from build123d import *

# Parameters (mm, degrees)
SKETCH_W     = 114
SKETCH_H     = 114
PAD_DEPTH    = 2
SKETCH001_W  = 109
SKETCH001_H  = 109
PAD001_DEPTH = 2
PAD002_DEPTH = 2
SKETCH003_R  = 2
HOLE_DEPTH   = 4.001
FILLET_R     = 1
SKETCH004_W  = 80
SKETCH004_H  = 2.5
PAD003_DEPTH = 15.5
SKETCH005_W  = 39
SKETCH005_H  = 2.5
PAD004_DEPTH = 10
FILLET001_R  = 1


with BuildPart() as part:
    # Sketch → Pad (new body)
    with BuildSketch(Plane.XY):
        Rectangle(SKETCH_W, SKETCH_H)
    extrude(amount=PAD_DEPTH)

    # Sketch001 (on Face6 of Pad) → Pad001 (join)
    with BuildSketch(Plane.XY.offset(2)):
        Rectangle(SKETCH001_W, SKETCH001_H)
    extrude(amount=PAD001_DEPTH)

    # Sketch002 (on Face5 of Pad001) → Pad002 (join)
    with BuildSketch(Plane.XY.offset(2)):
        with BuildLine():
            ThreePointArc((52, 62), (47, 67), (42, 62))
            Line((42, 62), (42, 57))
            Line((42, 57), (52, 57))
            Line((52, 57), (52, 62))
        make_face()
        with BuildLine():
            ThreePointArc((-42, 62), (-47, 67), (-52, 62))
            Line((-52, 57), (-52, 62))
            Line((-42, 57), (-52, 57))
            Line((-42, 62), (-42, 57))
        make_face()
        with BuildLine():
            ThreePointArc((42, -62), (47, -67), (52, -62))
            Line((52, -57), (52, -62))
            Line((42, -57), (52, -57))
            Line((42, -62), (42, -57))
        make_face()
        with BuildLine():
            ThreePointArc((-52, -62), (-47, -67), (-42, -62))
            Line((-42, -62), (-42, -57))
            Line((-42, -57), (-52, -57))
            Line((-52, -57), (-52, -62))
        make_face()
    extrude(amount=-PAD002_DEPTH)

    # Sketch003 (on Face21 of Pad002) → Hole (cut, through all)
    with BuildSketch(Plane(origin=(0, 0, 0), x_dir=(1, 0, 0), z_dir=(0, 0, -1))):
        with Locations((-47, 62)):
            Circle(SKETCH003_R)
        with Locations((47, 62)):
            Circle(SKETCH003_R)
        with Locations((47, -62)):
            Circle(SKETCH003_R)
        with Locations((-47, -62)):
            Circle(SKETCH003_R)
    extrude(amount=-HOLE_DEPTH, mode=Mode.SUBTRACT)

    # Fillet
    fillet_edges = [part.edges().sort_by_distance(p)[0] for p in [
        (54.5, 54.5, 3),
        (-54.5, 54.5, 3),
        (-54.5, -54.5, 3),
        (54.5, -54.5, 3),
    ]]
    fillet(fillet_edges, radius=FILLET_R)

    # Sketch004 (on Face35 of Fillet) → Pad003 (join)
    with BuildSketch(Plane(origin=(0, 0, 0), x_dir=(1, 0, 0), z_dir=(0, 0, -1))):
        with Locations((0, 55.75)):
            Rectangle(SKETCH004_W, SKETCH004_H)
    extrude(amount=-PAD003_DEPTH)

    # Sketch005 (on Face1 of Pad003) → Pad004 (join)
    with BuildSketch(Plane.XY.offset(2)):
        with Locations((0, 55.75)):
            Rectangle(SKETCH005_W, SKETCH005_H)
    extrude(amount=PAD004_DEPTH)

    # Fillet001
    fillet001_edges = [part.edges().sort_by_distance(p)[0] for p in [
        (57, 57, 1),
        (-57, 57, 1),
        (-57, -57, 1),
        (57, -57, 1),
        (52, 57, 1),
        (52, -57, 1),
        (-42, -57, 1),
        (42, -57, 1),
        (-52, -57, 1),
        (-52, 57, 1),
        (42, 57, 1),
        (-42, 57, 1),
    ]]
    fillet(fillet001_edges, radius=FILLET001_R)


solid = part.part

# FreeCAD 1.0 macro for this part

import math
import FreeCAD as App
import Part
import Sketcher
Q = App.Units.Quantity


def edges_at(feature, points):
    """Names of the edges that pass closest to the given points."""
    edges = feature.Shape.Edges
    near = lambda p: min(range(len(edges)), key=lambda i: edges[i].distToShape(Part.Vertex(*p))[0])
    return sorted({f"Edge{near(p) + 1}" for p in points})

doc = App.newDocument("Part")
body = doc.addObject("PartDesign::Body", "Body")

sketch1 = body.newObject("Sketcher::SketchObject", "Sketch")
sketch1.AttachmentSupport = (doc.getObject("XY_Plane"), [""])
sketch1.MapMode = "FlatFace"
sketch1.addGeometry(Part.LineSegment(App.Vector(-57, 57, 0), App.Vector(-57, -57, 0)), False)
sketch1.addGeometry(Part.LineSegment(App.Vector(-57, -57, 0), App.Vector(57, -57, 0)), False)
sketch1.addGeometry(Part.LineSegment(App.Vector(57, -57, 0), App.Vector(57, 57, 0)), False)
sketch1.addGeometry(Part.LineSegment(App.Vector(57, 57, 0), App.Vector(-57, 57, 0)), False)
sketch1.addConstraint(Sketcher.Constraint("Coincident", 0, 2, 1, 1))
sketch1.addConstraint(Sketcher.Constraint("Coincident", 1, 2, 2, 1))
sketch1.addConstraint(Sketcher.Constraint("Coincident", 2, 2, 3, 1))
sketch1.addConstraint(Sketcher.Constraint("Coincident", 3, 2, 0, 1))
sketch1.addConstraint(Sketcher.Constraint("Vertical", 0))
sketch1.addConstraint(Sketcher.Constraint("Horizontal", 1))
sketch1.addConstraint(Sketcher.Constraint("Vertical", 2))
sketch1.addConstraint(Sketcher.Constraint("Horizontal", 3))
sketch1.addConstraint(Sketcher.Constraint("Symmetric", 0, 2, 2, 2, -1, 1))
sketch1.addConstraint(Sketcher.Constraint("Equal", 3, 0))
sketch1.addConstraint(Sketcher.Constraint("DistanceX", 1, 1, 1, 2, Q("114 mm")))
pad1 = body.newObject("PartDesign::Pad", "Pad")
pad1.Profile = sketch1
pad1.Length = 2

sketch2 = body.newObject("Sketcher::SketchObject", "Sketch001")
sketch2.AttachmentSupport = (doc.getObject("XY_Plane"), [""])
sketch2.MapMode = "FlatFace"
sketch2.AttachmentOffset = App.Placement(App.Vector(0, 0, 2), App.Rotation())
sketch2.addGeometry(Part.LineSegment(App.Vector(-54, 54, 0), App.Vector(-54, -54, 0)), False)
sketch2.addGeometry(Part.LineSegment(App.Vector(-54, -54, 0), App.Vector(54, -54, 0)), False)
sketch2.addGeometry(Part.LineSegment(App.Vector(54, -54, 0), App.Vector(54, 54, 0)), False)
sketch2.addGeometry(Part.LineSegment(App.Vector(54, 54, 0), App.Vector(-54, 54, 0)), False)
sketch2.addConstraint(Sketcher.Constraint("Coincident", 0, 2, 1, 1))
sketch2.addConstraint(Sketcher.Constraint("Coincident", 1, 2, 2, 1))
sketch2.addConstraint(Sketcher.Constraint("Coincident", 2, 2, 3, 1))
sketch2.addConstraint(Sketcher.Constraint("Coincident", 3, 2, 0, 1))
sketch2.addConstraint(Sketcher.Constraint("Vertical", 0))
sketch2.addConstraint(Sketcher.Constraint("Horizontal", 1))
sketch2.addConstraint(Sketcher.Constraint("Vertical", 2))
sketch2.addConstraint(Sketcher.Constraint("Horizontal", 3))
sketch2.addConstraint(Sketcher.Constraint("Symmetric", 0, 2, 2, 2, -1, 1))
sketch2.addConstraint(Sketcher.Constraint("Equal", 3, 0))
sketch2.addConstraint(Sketcher.Constraint("DistanceX", 1, 1, 1, 2, Q("109 mm")))
pad2 = body.newObject("PartDesign::Pad", "Pad001")
pad2.Profile = sketch2
pad2.Length = 2

sketch3 = body.newObject("Sketcher::SketchObject", "Sketch002")
sketch3.AttachmentSupport = (doc.getObject("XY_Plane"), [""])
sketch3.MapMode = "FlatFace"
sketch3.AttachmentOffset = App.Placement(App.Vector(0, 0, 2), App.Rotation())
sketch3.addGeometry(Part.ArcOfCircle(Part.Circle(App.Vector(47, 62, 0), App.Vector(0, 0, 1), 5), math.radians(0), math.radians(180)), False)
sketch3.addGeometry(Part.LineSegment(App.Vector(42, 62, 0), App.Vector(42, 57, 0)), False)
sketch3.addGeometry(Part.LineSegment(App.Vector(42, 57, 0), App.Vector(52, 57, 0)), False)
sketch3.addGeometry(Part.LineSegment(App.Vector(52, 57, 0), App.Vector(52, 62, 0)), False)
sketch3.addGeometry(Part.ArcOfCircle(Part.Circle(App.Vector(-47, 62, 0), App.Vector(0, 0, 1), 5), math.radians(0), math.radians(180)), False)
sketch3.addGeometry(Part.LineSegment(App.Vector(-52, 62, 0), App.Vector(-52, 57, 0)), False)
sketch3.addGeometry(Part.LineSegment(App.Vector(-52, 57, 0), App.Vector(-42, 57, 0)), False)
sketch3.addGeometry(Part.LineSegment(App.Vector(-42, 57, 0), App.Vector(-42, 62, 0)), False)
sketch3.addGeometry(Part.ArcOfCircle(Part.Circle(App.Vector(47, -62, 0), App.Vector(0, 0, 1), 5), math.radians(180), math.radians(360)), False)
sketch3.addGeometry(Part.LineSegment(App.Vector(52, -62, 0), App.Vector(52, -57, 0)), False)
sketch3.addGeometry(Part.LineSegment(App.Vector(52, -57, 0), App.Vector(42, -57, 0)), False)
sketch3.addGeometry(Part.LineSegment(App.Vector(42, -57, 0), App.Vector(42, -62, 0)), False)
sketch3.addGeometry(Part.ArcOfCircle(Part.Circle(App.Vector(-47, -62, 0), App.Vector(0, 0, 1), 5), math.radians(180), math.radians(360)), False)
sketch3.addGeometry(Part.LineSegment(App.Vector(-42, -62, 0), App.Vector(-42, -57, 0)), False)
sketch3.addGeometry(Part.LineSegment(App.Vector(-42, -57, 0), App.Vector(-52, -57, 0)), False)
sketch3.addGeometry(Part.LineSegment(App.Vector(-52, -57, 0), App.Vector(-52, -62, 0)), False)
sketch3.addConstraint(Sketcher.Constraint("Tangent", 0, 2, 1, 1))
sketch3.addConstraint(Sketcher.Constraint("Coincident", 1, 2, 2, 1))
sketch3.addConstraint(Sketcher.Constraint("Coincident", 2, 2, 3, 1))
sketch3.addConstraint(Sketcher.Constraint("Tangent", 3, 2, 0, 1))
sketch3.addConstraint(Sketcher.Constraint("Tangent", 4, 2, 5, 1))
sketch3.addConstraint(Sketcher.Constraint("Coincident", 5, 2, 6, 1))
sketch3.addConstraint(Sketcher.Constraint("Coincident", 6, 2, 7, 1))
sketch3.addConstraint(Sketcher.Constraint("Tangent", 7, 2, 4, 1))
sketch3.addConstraint(Sketcher.Constraint("Tangent", 8, 2, 9, 1))
sketch3.addConstraint(Sketcher.Constraint("Coincident", 9, 2, 10, 1))
sketch3.addConstraint(Sketcher.Constraint("Coincident", 10, 2, 11, 1))
sketch3.addConstraint(Sketcher.Constraint("Tangent", 11, 2, 8, 1))
sketch3.addConstraint(Sketcher.Constraint("Tangent", 12, 2, 13, 1))
sketch3.addConstraint(Sketcher.Constraint("Coincident", 13, 2, 14, 1))
sketch3.addConstraint(Sketcher.Constraint("Coincident", 14, 2, 15, 1))
sketch3.addConstraint(Sketcher.Constraint("Tangent", 15, 2, 12, 1))
sketch3.addConstraint(Sketcher.Constraint("Vertical", 1))
sketch3.addConstraint(Sketcher.Constraint("Horizontal", 2))
sketch3.addConstraint(Sketcher.Constraint("Vertical", 3))
sketch3.addConstraint(Sketcher.Constraint("Vertical", 5))
sketch3.addConstraint(Sketcher.Constraint("Horizontal", 6))
sketch3.addConstraint(Sketcher.Constraint("Vertical", 7))
sketch3.addConstraint(Sketcher.Constraint("Vertical", 9))
sketch3.addConstraint(Sketcher.Constraint("Horizontal", 10))
sketch3.addConstraint(Sketcher.Constraint("Vertical", 11))
sketch3.addConstraint(Sketcher.Constraint("Vertical", 13))
sketch3.addConstraint(Sketcher.Constraint("Horizontal", 14))
sketch3.addConstraint(Sketcher.Constraint("Vertical", 15))
sketch3.addConstraint(Sketcher.Constraint("Equal", 0, 4))
sketch3.addConstraint(Sketcher.Constraint("Equal", 4, 8))
sketch3.addConstraint(Sketcher.Constraint("Equal", 8, 12))
sketch3.addConstraint(Sketcher.Constraint("Symmetric", 4, 3, 8, 3, -1, 1))
sketch3.addConstraint(Sketcher.Constraint("Symmetric", 0, 3, 12, 3, -1, 1))
sketch3.addConstraint(Sketcher.Constraint("Symmetric", 0, 3, 4, 3, -2))
sketch3.addConstraint(Sketcher.Constraint("Horizontal", 2, 2, 5, 2))
sketch3.addConstraint(Sketcher.Constraint("Horizontal", 10, 2, 13, 2))
sketch3.addConstraint(Sketcher.Constraint("Equal", 7, 9))
sketch3.addConstraint(Sketcher.Constraint("Radius", 0, Q("5 mm")))
sketch3.addConstraint(Sketcher.Constraint("DistanceY", 1, 2, 1, 1, Q("5 mm")))
sketch3.addConstraint(Sketcher.Constraint("DistanceX", -1, 1, 0, 3, Q("47 mm")))
sketch3.addConstraint(Sketcher.Constraint("DistanceY", -1, 1, 0, 3, Q("62 mm")))
pad3 = body.newObject("PartDesign::Pad", "Pad002")
pad3.Profile = sketch3
pad3.Length = 2
pad3.Reversed = True

sketch4 = body.newObject("Sketcher::SketchObject", "Sketch003")
sketch4.AttachmentSupport = (doc.getObject("XY_Plane"), [""])
sketch4.MapMode = "FlatFace"
sketch4.addGeometry(Part.Circle(App.Vector(-47, -62, 0), App.Vector(0, 0, 1), 2), False)
sketch4.addGeometry(Part.Circle(App.Vector(47, -62, 0), App.Vector(0, 0, 1), 2), False)
sketch4.addGeometry(Part.Circle(App.Vector(47, 62, 0), App.Vector(0, 0, 1), 2), False)
sketch4.addGeometry(Part.Circle(App.Vector(-47, 62, 0), App.Vector(0, 0, 1), 2), False)
sketch4.addConstraint(Sketcher.Constraint("Equal", 0, 1))
sketch4.addConstraint(Sketcher.Constraint("Equal", 1, 2))
sketch4.addConstraint(Sketcher.Constraint("Equal", 2, 3))
sketch4.addConstraint(Sketcher.Constraint("Symmetric", 0, 3, 2, 3, -1, 1))
sketch4.addConstraint(Sketcher.Constraint("Symmetric", 1, 3, 3, 3, -1, 1))
sketch4.addConstraint(Sketcher.Constraint("Symmetric", 0, 3, 1, 3, -2))
sketch4.addConstraint(Sketcher.Constraint("Diameter", 0, Q("4 mm")))
sketch4.addConstraint(Sketcher.Constraint("DistanceX", 0, 3, -1, 1, Q("47 mm")))
sketch4.addConstraint(Sketcher.Constraint("DistanceY", 0, 3, -1, 1, Q("62 mm")))
pocket1 = body.newObject("PartDesign::Pocket", "Pocket")
pocket1.Profile = sketch4
pocket1.Type = "ThroughAll"
pocket1.Reversed = True
doc.recompute()

fillet = body.newObject("PartDesign::Fillet", "Fillet")
fillet.Base = (pocket1, edges_at(pocket1, [
    (54.5, 54.5, 3),
    (-54.5, 54.5, 3),
    (-54.5, -54.5, 3),
    (54.5, -54.5, 3),
]))
fillet.Radius = 1

sketch5 = body.newObject("Sketcher::SketchObject", "Sketch004")
sketch5.AttachmentSupport = (doc.getObject("XY_Plane"), [""])
sketch5.MapMode = "FlatFace"
sketch5.addGeometry(Part.LineSegment(App.Vector(-40, -57, 0), App.Vector(-40, -54.5, 0)), False)
sketch5.addGeometry(Part.LineSegment(App.Vector(-40, -54.5, 0), App.Vector(40, -54.5, 0)), False)
sketch5.addGeometry(Part.LineSegment(App.Vector(40, -54.5, 0), App.Vector(40, -57, 0)), False)
sketch5.addGeometry(Part.LineSegment(App.Vector(40, -57, 0), App.Vector(-40, -57, 0)), False)
sketch5.addConstraint(Sketcher.Constraint("Coincident", 0, 2, 1, 1))
sketch5.addConstraint(Sketcher.Constraint("Coincident", 1, 2, 2, 1))
sketch5.addConstraint(Sketcher.Constraint("Coincident", 2, 2, 3, 1))
sketch5.addConstraint(Sketcher.Constraint("Coincident", 3, 2, 0, 1))
sketch5.addConstraint(Sketcher.Constraint("Vertical", 0))
sketch5.addConstraint(Sketcher.Constraint("Horizontal", 1))
sketch5.addConstraint(Sketcher.Constraint("Vertical", 2))
sketch5.addConstraint(Sketcher.Constraint("Horizontal", 3))
sketch5.addConstraint(Sketcher.Constraint("DistanceX", 1, 1, 1, 2, Q("80 mm")))
sketch5.addConstraint(Sketcher.Constraint("DistanceY", 0, 1, 0, 2, Q("2.5 mm")))
sketch5.addConstraint(Sketcher.Constraint("DistanceX", 0, 2, -1, 1, Q("40 mm")))
sketch5.addConstraint(Sketcher.Constraint("DistanceY", 2, 2, -1, 1, Q("57 mm")))
pad4 = body.newObject("PartDesign::Pad", "Pad003")
pad4.Profile = sketch5
pad4.Length = 15.5

sketch6 = body.newObject("Sketcher::SketchObject", "Sketch005")
sketch6.AttachmentSupport = (doc.getObject("XY_Plane"), [""])
sketch6.MapMode = "FlatFace"
sketch6.AttachmentOffset = App.Placement(App.Vector(0, 0, 2), App.Rotation())
sketch6.addGeometry(Part.LineSegment(App.Vector(-19.5, 57, 0), App.Vector(-19.5, 54.5, 0)), False)
sketch6.addGeometry(Part.LineSegment(App.Vector(-19.5, 54.5, 0), App.Vector(19.5, 54.5, 0)), False)
sketch6.addGeometry(Part.LineSegment(App.Vector(19.5, 54.5, 0), App.Vector(19.5, 57, 0)), False)
sketch6.addGeometry(Part.LineSegment(App.Vector(19.5, 57, 0), App.Vector(-19.5, 57, 0)), False)
sketch6.addConstraint(Sketcher.Constraint("Coincident", 0, 2, 1, 1))
sketch6.addConstraint(Sketcher.Constraint("Coincident", 1, 2, 2, 1))
sketch6.addConstraint(Sketcher.Constraint("Coincident", 2, 2, 3, 1))
sketch6.addConstraint(Sketcher.Constraint("Coincident", 3, 2, 0, 1))
sketch6.addConstraint(Sketcher.Constraint("Vertical", 0))
sketch6.addConstraint(Sketcher.Constraint("Horizontal", 1))
sketch6.addConstraint(Sketcher.Constraint("Vertical", 2))
sketch6.addConstraint(Sketcher.Constraint("Horizontal", 3))
sketch6.addConstraint(Sketcher.Constraint("DistanceX", 1, 1, 1, 2, Q("39 mm")))
sketch6.addConstraint(Sketcher.Constraint("DistanceY", 0, 2, 0, 1, Q("2.5 mm")))
sketch6.addConstraint(Sketcher.Constraint("DistanceY", -1, 1, 2, 2, Q("57 mm")))
sketch6.addConstraint(Sketcher.Constraint("DistanceX", 0, 2, -1, 1, Q("19.5 mm")))
pad5 = body.newObject("PartDesign::Pad", "Pad004")
pad5.Profile = sketch6
pad5.Length = 10
doc.recompute()

fillet2 = body.newObject("PartDesign::Fillet", "Fillet001")
fillet2.Base = (pad5, edges_at(pad5, [
    (57, 57, 1),
    (-57, 57, 1),
    (-57, -57, 1),
    (57, -57, 1),
    (52, 57, 1),
    (52, -57, 1),
    (-42, -57, 1),
    (42, -57, 1),
    (-52, -57, 1),
    (-52, 57, 1),
    (42, 57, 1),
    (-42, 57, 1),
]))
fillet2.Radius = 1

doc.recompute()
